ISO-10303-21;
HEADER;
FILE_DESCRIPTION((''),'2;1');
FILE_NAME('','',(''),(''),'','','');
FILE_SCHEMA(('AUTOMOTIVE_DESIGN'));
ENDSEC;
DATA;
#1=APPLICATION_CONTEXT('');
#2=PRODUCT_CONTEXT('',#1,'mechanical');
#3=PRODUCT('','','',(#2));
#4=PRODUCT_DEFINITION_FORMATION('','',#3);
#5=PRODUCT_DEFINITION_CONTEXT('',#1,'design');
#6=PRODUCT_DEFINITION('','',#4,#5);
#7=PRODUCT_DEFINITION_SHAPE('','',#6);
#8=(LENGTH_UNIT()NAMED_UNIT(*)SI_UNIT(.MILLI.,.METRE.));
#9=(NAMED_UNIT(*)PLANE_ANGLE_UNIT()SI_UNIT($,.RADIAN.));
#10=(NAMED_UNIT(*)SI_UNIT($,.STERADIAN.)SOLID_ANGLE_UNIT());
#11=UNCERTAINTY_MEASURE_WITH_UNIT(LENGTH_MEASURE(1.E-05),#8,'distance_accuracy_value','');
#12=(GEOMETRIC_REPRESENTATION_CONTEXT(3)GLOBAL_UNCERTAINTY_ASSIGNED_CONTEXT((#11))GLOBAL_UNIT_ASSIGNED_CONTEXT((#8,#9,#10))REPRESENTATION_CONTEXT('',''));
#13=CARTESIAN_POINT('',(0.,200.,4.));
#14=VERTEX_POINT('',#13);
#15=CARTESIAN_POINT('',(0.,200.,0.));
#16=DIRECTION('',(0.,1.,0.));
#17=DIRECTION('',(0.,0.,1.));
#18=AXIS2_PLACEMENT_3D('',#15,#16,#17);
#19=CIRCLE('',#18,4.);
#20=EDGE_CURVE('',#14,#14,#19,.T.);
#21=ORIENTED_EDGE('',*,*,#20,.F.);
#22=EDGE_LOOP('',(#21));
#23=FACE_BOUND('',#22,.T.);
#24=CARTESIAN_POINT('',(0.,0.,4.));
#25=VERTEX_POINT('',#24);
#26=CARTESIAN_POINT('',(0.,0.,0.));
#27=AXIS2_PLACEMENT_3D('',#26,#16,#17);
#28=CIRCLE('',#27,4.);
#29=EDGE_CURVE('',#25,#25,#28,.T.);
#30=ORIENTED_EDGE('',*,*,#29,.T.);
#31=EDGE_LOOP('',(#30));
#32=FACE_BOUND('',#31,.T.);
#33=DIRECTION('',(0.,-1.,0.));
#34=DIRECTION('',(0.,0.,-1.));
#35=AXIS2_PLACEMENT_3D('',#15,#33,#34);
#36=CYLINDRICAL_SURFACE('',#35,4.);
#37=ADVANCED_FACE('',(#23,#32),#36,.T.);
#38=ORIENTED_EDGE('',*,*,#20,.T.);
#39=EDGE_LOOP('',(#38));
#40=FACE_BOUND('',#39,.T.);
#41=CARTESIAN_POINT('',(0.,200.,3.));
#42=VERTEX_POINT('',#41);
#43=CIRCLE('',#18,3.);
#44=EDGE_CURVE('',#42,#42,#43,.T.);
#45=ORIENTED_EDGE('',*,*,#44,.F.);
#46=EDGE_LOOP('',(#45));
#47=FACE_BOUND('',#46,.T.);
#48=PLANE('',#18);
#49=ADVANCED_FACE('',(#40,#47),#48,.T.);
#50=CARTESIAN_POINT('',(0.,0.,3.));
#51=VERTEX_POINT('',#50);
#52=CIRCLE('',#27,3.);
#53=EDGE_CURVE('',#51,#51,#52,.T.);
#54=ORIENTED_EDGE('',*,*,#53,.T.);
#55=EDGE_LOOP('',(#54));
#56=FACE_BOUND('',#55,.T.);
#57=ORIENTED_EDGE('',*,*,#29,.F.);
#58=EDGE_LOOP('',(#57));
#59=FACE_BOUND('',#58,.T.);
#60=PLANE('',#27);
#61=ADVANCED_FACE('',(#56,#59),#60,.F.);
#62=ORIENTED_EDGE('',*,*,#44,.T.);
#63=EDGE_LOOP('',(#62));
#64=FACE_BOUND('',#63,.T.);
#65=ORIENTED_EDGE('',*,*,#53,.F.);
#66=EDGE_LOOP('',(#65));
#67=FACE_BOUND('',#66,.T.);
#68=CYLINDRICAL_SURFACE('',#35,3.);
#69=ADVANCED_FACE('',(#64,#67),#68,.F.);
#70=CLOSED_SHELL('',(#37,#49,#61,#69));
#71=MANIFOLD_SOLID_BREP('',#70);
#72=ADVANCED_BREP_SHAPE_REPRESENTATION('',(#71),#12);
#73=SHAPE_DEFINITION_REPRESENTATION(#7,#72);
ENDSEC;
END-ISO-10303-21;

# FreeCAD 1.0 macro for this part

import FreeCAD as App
import Part
import Sketcher
from FreeCAD import Vector

doc = App.newDocument("Part")
body = doc.addObject("PartDesign::Body", "Body")

# Sketch on XZ plane
sketch1 = body.newObject("Sketcher::SketchObject", "Sketch")
sketch1.AttachmentSupport = (doc.getObject("XZ_Plane"), [""])
sketch1.MapMode = "FlatFace"
sketch1.addGeometry([
    Part.Circle(Vector(0, 0, 0), Vector(0, 0, 1), 4),
    Part.Circle(Vector(0, 0, 0), Vector(0, 0, 1), 3),
], False)
sketch1.addConstraint([
    Sketcher.Constraint("Coincident", 0, 3, -1, 1),
    Sketcher.Constraint("Coincident", 1, 3, -1, 1),
    Sketcher.Constraint("Diameter", 0, 8.0),
    Sketcher.Constraint("Diameter", 1, 6.0),
])
pad1 = body.newObject("PartDesign::Pad", "Pad")
pad1.Profile = sketch1
pad1.Length = 200
pad1.Reversed = True

doc.recompute()
